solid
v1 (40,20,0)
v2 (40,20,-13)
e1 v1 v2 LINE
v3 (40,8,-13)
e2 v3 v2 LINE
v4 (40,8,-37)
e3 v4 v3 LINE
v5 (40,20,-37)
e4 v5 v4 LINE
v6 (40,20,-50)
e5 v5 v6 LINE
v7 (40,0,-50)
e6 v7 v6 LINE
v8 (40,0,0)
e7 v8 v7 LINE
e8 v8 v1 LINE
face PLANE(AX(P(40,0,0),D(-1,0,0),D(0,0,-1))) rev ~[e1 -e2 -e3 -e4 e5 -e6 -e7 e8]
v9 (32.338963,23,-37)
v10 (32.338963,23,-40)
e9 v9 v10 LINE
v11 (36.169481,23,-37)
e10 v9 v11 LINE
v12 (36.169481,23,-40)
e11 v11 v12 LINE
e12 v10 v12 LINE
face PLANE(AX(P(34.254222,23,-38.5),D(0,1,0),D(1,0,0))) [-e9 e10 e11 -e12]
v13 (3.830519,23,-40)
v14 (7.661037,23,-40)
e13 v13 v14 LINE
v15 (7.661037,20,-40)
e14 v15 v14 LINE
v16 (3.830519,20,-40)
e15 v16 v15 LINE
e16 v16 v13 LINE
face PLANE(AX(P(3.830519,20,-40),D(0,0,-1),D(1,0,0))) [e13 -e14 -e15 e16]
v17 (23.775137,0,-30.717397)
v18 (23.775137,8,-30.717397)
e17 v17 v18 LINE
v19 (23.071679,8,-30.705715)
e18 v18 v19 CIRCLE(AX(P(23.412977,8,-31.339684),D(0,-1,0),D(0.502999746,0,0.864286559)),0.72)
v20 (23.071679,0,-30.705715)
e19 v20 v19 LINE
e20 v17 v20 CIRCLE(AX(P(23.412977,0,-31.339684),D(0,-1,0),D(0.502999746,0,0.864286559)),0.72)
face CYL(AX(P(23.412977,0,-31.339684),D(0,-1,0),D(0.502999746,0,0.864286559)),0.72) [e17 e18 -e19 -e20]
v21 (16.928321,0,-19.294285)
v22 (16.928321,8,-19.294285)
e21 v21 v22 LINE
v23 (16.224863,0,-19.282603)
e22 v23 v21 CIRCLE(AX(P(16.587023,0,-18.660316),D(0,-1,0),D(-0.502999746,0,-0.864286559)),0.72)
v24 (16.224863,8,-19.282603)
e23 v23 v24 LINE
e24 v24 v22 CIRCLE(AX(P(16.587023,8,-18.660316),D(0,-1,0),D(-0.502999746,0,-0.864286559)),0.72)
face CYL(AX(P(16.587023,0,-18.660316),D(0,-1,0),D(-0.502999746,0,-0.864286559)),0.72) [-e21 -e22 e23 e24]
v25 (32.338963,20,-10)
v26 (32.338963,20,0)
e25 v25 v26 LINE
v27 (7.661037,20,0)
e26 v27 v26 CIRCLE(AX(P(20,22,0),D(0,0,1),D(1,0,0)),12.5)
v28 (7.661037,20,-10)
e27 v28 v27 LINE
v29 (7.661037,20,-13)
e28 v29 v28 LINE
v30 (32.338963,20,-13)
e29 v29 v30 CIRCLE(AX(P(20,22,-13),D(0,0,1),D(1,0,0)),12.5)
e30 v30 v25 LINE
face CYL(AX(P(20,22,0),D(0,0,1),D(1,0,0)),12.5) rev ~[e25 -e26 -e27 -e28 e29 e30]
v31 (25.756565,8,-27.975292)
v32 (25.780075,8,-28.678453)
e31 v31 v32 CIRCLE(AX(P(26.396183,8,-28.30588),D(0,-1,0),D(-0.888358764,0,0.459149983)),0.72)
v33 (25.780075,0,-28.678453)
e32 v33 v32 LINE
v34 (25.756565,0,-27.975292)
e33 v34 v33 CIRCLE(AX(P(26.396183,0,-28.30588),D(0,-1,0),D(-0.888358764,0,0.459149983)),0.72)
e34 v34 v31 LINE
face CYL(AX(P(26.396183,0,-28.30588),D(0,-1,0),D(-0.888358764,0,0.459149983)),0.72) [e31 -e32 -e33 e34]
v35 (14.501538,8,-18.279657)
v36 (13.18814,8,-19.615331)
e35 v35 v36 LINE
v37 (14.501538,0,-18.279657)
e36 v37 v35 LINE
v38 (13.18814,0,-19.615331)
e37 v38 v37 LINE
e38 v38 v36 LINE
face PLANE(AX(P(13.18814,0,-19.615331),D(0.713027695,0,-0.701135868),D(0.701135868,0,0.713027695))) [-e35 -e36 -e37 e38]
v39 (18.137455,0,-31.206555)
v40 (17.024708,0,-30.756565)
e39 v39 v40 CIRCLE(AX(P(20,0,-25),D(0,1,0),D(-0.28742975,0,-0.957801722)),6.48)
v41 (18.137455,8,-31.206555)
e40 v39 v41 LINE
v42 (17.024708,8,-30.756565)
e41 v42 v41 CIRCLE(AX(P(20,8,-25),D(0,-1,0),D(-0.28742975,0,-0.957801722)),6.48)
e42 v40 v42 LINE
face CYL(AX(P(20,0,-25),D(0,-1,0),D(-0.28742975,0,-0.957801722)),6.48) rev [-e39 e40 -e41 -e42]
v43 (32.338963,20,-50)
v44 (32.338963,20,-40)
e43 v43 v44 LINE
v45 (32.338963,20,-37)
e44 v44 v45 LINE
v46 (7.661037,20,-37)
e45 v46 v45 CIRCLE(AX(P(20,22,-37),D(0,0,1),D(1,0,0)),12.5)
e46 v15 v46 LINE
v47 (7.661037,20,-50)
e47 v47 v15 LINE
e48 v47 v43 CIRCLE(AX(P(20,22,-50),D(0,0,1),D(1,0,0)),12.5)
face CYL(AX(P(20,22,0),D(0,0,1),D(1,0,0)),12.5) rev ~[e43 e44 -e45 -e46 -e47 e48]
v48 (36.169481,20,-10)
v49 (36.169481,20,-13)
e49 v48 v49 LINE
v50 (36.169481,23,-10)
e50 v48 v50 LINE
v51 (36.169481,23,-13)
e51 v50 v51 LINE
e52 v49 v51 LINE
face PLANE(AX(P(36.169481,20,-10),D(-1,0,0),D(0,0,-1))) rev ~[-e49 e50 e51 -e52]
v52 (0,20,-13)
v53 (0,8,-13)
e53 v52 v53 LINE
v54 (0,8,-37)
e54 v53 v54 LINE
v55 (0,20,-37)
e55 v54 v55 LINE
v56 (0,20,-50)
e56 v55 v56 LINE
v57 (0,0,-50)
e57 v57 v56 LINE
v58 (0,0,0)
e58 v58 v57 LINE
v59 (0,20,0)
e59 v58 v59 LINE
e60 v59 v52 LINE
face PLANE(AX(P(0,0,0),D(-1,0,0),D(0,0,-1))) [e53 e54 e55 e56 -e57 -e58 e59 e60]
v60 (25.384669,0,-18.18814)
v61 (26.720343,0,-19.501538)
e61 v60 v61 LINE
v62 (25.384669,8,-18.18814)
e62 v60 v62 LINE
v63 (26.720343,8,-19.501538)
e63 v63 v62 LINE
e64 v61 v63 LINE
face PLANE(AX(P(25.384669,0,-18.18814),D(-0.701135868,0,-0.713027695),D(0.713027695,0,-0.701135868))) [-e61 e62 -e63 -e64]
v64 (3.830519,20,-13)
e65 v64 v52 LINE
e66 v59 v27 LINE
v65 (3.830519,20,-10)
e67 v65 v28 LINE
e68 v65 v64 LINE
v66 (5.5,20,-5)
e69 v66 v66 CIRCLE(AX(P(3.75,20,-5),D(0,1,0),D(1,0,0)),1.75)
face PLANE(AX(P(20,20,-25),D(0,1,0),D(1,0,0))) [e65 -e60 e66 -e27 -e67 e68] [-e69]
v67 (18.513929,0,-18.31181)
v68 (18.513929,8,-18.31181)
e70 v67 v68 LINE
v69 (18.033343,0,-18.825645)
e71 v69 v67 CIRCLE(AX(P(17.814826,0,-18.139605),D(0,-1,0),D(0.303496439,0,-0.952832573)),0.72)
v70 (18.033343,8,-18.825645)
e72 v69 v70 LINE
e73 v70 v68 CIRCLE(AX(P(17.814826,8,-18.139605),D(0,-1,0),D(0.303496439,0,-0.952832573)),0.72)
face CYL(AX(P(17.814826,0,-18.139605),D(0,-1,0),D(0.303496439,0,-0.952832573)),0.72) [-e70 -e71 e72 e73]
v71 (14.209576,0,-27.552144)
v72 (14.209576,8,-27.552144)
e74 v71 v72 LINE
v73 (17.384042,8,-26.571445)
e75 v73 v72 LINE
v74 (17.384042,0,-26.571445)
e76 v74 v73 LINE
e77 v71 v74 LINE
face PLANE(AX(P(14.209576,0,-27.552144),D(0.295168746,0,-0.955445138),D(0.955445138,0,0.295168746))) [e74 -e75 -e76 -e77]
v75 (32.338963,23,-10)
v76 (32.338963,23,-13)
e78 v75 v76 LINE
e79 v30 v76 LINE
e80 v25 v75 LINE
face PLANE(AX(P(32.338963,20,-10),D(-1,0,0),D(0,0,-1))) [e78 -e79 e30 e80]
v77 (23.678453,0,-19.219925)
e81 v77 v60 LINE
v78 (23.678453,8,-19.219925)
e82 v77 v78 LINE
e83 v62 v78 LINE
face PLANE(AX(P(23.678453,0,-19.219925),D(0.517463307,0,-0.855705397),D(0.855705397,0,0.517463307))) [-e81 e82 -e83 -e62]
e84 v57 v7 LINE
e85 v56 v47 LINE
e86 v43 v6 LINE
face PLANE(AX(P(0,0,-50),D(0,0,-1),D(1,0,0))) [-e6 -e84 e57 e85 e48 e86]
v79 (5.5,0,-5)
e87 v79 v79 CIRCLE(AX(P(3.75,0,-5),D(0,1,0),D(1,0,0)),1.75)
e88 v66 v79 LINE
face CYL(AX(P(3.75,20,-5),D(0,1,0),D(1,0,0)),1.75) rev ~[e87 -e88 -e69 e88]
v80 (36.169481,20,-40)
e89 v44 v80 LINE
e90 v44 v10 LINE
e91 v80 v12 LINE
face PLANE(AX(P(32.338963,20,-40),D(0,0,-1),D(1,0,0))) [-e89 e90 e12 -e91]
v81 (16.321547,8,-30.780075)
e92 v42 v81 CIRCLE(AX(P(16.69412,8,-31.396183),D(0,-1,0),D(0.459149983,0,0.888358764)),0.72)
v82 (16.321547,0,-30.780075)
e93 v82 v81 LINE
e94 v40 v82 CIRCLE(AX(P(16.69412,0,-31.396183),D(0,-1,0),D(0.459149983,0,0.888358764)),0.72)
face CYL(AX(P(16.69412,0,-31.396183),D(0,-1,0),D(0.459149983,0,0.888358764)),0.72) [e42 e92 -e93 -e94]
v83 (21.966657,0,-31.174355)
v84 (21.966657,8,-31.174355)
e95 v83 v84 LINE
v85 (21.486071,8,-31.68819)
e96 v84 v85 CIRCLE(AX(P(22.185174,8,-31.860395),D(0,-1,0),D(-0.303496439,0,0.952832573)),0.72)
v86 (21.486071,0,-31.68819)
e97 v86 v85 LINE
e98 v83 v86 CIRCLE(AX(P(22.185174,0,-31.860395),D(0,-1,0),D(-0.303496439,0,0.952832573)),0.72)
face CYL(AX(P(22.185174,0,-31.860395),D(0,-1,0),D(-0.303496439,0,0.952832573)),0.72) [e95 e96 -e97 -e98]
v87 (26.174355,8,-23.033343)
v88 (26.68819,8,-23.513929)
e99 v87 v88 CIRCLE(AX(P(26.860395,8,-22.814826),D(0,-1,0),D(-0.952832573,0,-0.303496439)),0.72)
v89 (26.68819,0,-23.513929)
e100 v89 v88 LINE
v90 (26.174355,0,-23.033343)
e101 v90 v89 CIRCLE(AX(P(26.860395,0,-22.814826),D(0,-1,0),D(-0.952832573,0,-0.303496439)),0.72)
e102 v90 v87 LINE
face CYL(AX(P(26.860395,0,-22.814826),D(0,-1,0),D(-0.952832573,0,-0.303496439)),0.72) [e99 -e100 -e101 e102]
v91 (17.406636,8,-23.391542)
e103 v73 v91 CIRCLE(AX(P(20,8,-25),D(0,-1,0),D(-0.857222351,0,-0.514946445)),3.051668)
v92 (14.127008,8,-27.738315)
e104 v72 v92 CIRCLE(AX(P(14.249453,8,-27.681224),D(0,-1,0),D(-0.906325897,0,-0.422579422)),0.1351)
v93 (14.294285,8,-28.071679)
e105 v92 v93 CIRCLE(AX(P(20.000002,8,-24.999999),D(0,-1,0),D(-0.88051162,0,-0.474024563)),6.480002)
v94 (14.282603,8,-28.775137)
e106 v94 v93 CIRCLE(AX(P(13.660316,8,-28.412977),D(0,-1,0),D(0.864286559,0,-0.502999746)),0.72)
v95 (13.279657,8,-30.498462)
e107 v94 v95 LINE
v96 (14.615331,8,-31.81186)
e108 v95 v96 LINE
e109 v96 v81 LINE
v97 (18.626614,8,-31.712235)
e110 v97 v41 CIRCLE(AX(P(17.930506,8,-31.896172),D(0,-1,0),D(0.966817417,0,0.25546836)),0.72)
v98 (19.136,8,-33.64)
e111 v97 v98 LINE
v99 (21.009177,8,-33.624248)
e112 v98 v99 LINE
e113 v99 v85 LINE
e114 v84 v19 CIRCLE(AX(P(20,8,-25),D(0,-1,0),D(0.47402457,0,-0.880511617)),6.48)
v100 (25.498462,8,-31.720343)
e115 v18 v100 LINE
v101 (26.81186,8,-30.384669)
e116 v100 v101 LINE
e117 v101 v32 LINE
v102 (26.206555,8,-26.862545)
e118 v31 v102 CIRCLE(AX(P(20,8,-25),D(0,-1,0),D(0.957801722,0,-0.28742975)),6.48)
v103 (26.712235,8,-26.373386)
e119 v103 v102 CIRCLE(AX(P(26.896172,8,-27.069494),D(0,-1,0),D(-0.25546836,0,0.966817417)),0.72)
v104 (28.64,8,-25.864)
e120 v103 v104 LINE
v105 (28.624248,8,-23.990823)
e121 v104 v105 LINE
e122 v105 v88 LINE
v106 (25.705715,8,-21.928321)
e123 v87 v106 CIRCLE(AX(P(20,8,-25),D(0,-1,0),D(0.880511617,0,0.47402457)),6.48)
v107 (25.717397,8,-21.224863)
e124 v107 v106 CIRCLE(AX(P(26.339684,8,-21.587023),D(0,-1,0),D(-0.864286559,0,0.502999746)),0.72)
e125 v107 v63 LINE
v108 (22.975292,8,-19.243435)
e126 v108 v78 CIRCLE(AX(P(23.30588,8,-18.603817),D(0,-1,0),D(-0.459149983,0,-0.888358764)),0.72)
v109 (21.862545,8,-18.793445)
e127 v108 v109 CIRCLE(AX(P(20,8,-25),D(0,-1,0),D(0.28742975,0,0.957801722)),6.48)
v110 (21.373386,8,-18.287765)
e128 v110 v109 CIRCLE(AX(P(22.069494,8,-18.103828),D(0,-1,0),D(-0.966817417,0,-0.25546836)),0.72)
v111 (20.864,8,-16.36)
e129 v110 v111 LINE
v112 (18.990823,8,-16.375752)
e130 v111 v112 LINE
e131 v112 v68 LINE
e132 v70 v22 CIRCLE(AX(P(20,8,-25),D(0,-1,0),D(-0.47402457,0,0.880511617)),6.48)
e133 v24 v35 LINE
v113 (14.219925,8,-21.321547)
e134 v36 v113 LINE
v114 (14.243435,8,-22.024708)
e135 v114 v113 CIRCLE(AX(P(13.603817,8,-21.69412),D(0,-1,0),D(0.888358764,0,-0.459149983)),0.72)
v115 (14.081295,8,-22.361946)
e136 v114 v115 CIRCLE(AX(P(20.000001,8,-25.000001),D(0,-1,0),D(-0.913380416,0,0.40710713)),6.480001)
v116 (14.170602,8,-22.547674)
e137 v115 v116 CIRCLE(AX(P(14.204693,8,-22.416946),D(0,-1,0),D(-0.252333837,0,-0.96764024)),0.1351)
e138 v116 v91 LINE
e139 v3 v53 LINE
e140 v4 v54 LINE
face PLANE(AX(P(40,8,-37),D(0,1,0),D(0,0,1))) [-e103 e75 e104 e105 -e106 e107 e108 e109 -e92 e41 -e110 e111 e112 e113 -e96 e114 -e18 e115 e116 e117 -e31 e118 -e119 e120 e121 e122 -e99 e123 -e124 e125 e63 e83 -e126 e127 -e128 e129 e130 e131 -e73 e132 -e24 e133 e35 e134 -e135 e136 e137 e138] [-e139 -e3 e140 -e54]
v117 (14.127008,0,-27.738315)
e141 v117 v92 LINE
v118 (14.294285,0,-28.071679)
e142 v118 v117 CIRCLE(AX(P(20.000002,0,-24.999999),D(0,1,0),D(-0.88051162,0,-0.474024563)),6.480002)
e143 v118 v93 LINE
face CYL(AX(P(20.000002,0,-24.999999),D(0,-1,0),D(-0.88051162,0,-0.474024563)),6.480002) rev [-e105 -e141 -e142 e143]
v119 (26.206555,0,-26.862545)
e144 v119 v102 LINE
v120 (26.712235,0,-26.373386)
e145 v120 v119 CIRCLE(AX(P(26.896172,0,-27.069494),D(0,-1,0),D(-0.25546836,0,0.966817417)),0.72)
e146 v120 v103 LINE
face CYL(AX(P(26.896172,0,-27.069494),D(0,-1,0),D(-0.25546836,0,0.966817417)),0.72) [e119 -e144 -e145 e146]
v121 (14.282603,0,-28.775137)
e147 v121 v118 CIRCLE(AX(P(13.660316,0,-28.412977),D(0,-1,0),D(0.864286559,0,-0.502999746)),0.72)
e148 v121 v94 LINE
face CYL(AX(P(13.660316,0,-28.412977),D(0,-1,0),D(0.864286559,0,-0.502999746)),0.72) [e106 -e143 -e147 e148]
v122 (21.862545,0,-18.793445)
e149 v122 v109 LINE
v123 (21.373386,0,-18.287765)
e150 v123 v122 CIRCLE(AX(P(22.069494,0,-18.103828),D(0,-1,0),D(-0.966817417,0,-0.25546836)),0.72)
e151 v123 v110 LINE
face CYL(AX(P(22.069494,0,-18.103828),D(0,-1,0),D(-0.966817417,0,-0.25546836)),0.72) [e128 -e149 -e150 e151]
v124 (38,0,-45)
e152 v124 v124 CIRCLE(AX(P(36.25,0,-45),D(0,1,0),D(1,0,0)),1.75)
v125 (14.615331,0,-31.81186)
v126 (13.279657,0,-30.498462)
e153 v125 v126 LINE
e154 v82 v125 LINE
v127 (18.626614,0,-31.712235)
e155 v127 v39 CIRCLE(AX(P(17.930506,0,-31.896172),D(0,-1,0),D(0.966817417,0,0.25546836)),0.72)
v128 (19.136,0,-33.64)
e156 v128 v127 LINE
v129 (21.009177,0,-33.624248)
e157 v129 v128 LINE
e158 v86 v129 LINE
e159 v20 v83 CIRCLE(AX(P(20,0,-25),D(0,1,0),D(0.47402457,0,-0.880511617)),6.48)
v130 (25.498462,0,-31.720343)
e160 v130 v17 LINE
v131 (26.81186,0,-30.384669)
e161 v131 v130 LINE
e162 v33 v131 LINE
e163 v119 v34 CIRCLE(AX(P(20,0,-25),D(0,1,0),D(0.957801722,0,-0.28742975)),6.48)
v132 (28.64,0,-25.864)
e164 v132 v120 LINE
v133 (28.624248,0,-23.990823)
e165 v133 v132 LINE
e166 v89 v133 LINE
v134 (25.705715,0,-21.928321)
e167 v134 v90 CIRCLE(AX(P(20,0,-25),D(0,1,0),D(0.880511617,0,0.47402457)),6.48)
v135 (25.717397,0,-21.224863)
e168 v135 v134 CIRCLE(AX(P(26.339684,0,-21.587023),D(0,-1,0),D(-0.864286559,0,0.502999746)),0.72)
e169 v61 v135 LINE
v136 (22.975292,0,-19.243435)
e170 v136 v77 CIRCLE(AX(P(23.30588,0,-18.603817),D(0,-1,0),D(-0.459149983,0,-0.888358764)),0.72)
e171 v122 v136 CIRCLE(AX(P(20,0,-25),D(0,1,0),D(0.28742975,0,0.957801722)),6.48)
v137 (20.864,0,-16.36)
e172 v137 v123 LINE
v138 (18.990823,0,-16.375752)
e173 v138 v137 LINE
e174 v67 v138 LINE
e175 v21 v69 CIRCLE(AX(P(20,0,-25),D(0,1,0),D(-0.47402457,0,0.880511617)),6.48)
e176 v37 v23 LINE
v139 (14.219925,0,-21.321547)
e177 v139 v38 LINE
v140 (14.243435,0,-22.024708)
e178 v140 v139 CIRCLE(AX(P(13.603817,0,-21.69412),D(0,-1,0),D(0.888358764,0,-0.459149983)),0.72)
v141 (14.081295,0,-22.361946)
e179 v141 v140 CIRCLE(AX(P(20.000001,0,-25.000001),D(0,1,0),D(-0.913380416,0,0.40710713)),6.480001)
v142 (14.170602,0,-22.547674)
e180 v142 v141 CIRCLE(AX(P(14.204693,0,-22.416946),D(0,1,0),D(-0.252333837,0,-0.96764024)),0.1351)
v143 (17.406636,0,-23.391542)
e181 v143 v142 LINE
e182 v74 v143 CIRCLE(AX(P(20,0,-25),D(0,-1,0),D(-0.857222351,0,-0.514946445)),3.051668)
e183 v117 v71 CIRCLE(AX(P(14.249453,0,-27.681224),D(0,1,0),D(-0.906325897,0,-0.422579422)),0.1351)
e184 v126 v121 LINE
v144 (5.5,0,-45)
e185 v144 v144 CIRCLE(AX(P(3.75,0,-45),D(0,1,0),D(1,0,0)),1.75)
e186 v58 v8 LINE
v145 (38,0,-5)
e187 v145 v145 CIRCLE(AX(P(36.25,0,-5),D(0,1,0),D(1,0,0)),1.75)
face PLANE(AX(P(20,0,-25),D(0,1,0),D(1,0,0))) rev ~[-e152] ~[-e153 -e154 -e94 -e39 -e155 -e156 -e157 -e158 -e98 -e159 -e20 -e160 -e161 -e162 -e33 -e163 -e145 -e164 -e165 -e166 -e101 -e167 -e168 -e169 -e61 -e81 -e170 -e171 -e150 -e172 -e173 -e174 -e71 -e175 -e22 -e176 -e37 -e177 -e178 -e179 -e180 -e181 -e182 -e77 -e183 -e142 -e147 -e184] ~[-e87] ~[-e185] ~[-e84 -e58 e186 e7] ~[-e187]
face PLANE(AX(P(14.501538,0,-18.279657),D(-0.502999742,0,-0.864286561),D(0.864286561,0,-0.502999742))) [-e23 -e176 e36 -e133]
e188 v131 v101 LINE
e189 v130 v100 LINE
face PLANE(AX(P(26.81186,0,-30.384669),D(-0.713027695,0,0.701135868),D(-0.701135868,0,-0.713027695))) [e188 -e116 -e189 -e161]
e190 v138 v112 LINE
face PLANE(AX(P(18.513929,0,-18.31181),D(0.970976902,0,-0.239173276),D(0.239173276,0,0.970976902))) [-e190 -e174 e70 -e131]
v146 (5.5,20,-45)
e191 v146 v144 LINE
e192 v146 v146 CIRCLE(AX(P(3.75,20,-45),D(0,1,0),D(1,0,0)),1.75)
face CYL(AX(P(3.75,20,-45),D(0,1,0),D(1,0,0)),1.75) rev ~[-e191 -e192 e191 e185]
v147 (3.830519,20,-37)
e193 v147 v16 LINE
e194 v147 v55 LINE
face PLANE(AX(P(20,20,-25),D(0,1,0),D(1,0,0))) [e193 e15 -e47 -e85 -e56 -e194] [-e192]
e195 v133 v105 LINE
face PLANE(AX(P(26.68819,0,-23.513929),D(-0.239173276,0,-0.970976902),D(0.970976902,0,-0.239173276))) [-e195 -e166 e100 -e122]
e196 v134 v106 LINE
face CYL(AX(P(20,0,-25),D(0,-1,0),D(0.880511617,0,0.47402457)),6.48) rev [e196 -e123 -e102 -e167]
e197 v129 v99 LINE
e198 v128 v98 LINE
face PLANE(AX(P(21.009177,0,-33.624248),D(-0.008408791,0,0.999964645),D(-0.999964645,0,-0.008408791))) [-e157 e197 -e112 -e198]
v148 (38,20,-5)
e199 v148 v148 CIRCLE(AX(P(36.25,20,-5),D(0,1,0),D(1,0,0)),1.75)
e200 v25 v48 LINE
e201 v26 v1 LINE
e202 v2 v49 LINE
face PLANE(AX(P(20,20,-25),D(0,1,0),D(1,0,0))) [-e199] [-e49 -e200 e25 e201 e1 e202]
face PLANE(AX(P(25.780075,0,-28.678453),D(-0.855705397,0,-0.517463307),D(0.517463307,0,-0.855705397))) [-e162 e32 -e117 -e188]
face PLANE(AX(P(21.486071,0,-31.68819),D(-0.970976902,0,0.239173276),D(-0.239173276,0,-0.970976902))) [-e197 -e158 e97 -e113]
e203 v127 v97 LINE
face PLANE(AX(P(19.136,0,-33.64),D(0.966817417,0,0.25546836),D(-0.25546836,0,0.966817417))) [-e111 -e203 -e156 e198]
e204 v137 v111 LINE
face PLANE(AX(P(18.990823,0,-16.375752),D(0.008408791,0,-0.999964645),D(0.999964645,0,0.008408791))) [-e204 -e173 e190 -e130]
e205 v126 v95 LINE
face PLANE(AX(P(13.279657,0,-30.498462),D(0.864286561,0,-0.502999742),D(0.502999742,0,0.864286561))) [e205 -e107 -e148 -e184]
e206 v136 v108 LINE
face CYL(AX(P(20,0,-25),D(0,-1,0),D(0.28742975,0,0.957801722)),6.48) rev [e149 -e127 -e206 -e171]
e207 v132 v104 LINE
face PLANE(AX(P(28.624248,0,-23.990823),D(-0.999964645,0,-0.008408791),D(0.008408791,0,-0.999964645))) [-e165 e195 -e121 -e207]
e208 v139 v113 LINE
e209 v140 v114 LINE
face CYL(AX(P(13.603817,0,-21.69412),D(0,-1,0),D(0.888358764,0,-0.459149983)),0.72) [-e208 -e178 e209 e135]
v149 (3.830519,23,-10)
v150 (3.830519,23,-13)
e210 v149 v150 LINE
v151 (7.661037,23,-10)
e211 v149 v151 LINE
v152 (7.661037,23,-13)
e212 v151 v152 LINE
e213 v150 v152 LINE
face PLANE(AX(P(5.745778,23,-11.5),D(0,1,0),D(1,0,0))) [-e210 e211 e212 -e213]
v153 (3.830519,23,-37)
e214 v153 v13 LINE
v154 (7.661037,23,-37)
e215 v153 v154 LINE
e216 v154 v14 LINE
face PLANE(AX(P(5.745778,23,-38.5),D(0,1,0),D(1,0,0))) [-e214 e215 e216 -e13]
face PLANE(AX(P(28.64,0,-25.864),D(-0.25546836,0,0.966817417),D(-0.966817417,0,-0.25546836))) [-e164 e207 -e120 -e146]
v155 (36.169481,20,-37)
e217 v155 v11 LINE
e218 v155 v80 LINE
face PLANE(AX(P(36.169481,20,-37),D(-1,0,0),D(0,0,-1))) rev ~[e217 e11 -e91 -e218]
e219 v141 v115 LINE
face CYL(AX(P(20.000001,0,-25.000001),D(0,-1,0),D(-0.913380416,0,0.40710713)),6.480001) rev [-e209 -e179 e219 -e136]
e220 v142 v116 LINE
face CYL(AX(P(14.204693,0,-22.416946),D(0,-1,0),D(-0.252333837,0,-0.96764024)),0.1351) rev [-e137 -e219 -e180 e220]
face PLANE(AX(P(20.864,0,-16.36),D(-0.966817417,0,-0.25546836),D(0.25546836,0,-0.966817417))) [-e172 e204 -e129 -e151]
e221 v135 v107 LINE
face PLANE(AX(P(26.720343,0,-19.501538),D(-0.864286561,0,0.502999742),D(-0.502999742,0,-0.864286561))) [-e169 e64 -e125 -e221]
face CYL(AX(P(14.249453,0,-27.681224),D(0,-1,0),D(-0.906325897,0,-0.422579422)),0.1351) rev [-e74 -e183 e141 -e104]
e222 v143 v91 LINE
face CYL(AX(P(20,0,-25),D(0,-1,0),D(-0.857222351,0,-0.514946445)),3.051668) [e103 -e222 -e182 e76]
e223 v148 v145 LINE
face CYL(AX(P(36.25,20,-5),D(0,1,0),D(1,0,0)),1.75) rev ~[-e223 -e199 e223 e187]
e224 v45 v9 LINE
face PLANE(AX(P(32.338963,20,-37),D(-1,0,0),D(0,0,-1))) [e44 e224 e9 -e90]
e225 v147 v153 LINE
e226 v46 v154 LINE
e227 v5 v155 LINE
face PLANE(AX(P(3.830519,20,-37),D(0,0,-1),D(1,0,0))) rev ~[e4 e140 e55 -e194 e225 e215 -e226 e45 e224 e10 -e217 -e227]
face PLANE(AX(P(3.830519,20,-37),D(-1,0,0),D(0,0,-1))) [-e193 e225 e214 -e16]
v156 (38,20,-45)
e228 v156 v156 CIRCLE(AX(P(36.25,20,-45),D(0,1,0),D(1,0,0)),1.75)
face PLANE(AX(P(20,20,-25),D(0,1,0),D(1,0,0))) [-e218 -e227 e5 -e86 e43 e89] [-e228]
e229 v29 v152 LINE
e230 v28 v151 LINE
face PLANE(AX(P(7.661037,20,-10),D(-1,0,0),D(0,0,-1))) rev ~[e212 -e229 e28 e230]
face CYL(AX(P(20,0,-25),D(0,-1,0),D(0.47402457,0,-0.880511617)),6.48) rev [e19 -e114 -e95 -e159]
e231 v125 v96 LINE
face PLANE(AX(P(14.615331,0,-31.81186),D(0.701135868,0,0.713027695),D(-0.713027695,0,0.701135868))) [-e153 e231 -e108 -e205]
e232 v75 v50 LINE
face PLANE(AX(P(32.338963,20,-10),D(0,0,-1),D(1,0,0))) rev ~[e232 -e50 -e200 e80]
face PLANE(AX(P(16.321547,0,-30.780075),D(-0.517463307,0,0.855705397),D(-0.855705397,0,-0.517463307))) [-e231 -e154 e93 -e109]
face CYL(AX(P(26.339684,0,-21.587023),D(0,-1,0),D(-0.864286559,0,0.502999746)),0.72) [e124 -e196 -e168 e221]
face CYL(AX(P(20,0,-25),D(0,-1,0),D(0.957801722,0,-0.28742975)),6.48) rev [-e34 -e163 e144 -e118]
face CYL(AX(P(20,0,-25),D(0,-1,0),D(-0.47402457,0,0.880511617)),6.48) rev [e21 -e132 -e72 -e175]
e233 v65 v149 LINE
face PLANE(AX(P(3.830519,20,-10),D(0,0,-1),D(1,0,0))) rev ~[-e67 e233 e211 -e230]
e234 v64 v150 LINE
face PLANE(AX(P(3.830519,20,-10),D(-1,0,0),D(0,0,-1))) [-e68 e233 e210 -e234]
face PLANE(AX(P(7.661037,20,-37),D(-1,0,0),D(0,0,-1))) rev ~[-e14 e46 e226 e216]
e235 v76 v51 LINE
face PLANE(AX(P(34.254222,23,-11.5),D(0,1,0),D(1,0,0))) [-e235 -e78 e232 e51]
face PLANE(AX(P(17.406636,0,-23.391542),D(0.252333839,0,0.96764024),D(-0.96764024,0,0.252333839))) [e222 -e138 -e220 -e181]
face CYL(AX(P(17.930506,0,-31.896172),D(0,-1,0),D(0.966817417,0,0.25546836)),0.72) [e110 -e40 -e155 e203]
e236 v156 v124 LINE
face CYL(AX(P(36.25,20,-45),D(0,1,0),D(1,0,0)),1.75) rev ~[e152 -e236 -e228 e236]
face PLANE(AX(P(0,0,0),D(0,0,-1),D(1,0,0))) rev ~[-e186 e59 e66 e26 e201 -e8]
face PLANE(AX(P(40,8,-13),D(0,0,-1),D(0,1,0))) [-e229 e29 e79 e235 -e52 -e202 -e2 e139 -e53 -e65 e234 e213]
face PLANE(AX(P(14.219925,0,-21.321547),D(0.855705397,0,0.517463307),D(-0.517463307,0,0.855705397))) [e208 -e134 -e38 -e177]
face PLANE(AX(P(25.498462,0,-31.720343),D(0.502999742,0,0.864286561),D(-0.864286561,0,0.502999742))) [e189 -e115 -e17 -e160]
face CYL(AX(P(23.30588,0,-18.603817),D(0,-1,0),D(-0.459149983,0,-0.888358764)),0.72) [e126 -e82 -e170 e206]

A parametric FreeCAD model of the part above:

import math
import FreeCAD as App
import Part
import Sketcher
Q = App.Units.Quantity

doc = App.newDocument("Part")
params = doc.addObject("Spreadsheet::Sheet", "Params")
for row, (alias, value) in enumerate([
    ("sketch1_width", "40 mm"),
    ("sketch1_height", "50 mm"),
    ("pad1_length", "20 mm"),
    ("sketch2_diameter", "25 mm"),
    ("sketch3_diameter", "3.5 mm"),
    ("sketch4_width", "12 mm"),
    ("sketch4_height", "24 mm"),
    ("sketch5_height", "3 mm"),
    ("pad2_length", "3 mm"),
    ("sketch6_radius", "0.72 mm"),
    ("sketch6_radius2", "6.480001 mm"),
], start=1):
    params.set(f"A{row}", alias)
    params.set(f"B{row}", "=" + value)
    params.setAlias(f"B{row}", alias)

body = doc.addObject("PartDesign::Body", "Body")

# Sketch on XZ plane
sketch1 = doc.addObject("Sketcher::SketchObject", "Sketch")
body.addObject(sketch1)
sketch1.AttachmentSupport = (doc.XZ_Plane, [""])
sketch1.MapMode = "FlatFace"
sketch1.addGeometry(Part.LineSegment(App.Vector(0, -50, 0), App.Vector(0, 0, 0)), False)
sketch1.addGeometry(Part.LineSegment(App.Vector(0, 0, 0), App.Vector(40, 0, 0)), False)
sketch1.addGeometry(Part.LineSegment(App.Vector(40, 0, 0), App.Vector(40, -50, 0)), False)
sketch1.addGeometry(Part.LineSegment(App.Vector(40, -50, 0), App.Vector(0, -50, 0)), False)
sketch1.addConstraint(Sketcher.Constraint("Coincident", 0, 2, 1, 1))
sketch1.addConstraint(Sketcher.Constraint("Coincident", 1, 2, 2, 1))
sketch1.addConstraint(Sketcher.Constraint("Coincident", 2, 2, 3, 1))
sketch1.addConstraint(Sketcher.Constraint("Coincident", 3, 2, 0, 1))
sketch1.addConstraint(Sketcher.Constraint("Vertical", 0))
sketch1.addConstraint(Sketcher.Constraint("Horizontal", 1))
sketch1.addConstraint(Sketcher.Constraint("Vertical", 2))
sketch1.addConstraint(Sketcher.Constraint("Horizontal", 3))
sketch1.addConstraint(Sketcher.Constraint("Coincident", 0, 2, -1, 1))
sketch1.addConstraint(Sketcher.Constraint("DistanceX", 1, 1, 1, 2, Q("40 mm")))
sketch1.addConstraint(Sketcher.Constraint("DistanceY", 0, 1, 0, 2, Q("50 mm")))
sketch1.setExpression("Constraints[9]", "Params.sketch1_width")
sketch1.setExpression("Constraints[10]", "Params.sketch1_height")
pad1 = doc.addObject("PartDesign::Pad", "Pad")
body.addObject(pad1)
pad1.Profile = sketch1
pad1.setExpression("Length", "Params.pad1_length")
pad1.Reversed = True

# Sketch on XY plane
sketch2 = doc.addObject("Sketcher::SketchObject", "Sketch001")
body.addObject(sketch2)
sketch2.AttachmentSupport = (doc.XY_Plane, [""])
sketch2.MapMode = "FlatFace"
sketch2.addGeometry(Part.Circle(App.Vector(20, 22, 0), App.Vector(0, 0, 1), 12), False)
sketch2.addConstraint(Sketcher.Constraint("Diameter", 0, Q("25 mm")))
sketch2.addConstraint(Sketcher.Constraint("DistanceX", -1, 1, 0, 3, Q("20 mm")))
sketch2.addConstraint(Sketcher.Constraint("DistanceY", -1, 1, 0, 3, Q("22 mm")))
sketch2.setExpression("Constraints[0]", "Params.sketch2_diameter")
pocket1 = doc.addObject("PartDesign::Pocket", "Pocket")
body.addObject(pocket1)
pocket1.Profile = sketch2
pocket1.Type = "ThroughAll"

# Sketch on XZ plane
sketch3 = doc.addObject("Sketcher::SketchObject", "Sketch002")
body.addObject(sketch3)
sketch3.AttachmentSupport = (doc.XZ_Plane, [""])
sketch3.MapMode = "FlatFace"
sketch3.AttachmentOffset = App.Placement(App.Vector(0, 0, -20), App.Rotation())
sketch3.addGeometry(Part.Circle(App.Vector(3.8, -45, 0), App.Vector(0, 0, 1), 1.8), False)
sketch3.addGeometry(Part.Circle(App.Vector(36.2, -45, 0), App.Vector(0, 0, 1), 1.8), False)
sketch3.addGeometry(Part.Circle(App.Vector(36.2, -5, 0), App.Vector(0, 0, 1), 1.8), False)
sketch3.addGeometry(Part.Circle(App.Vector(3.8, -5, 0), App.Vector(0, 0, 1), 1.8), False)
sketch3.addConstraint(Sketcher.Constraint("Equal", 0, 1))
sketch3.addConstraint(Sketcher.Constraint("Equal", 1, 2))
sketch3.addConstraint(Sketcher.Constraint("Equal", 2, 3))
sketch3.addConstraint(Sketcher.Constraint("Horizontal", 0, 3, 1, 3))
sketch3.addConstraint(Sketcher.Constraint("Horizontal", 2, 3, 3, 3))
sketch3.addConstraint(Sketcher.Constraint("Vertical", 1, 3, 2, 3))
sketch3.addConstraint(Sketcher.Constraint("Vertical", 0, 3, 3, 3))
sketch3.addConstraint(Sketcher.Constraint("Diameter", 0, Q("3.5 mm")))
sketch3.addConstraint(Sketcher.Constraint("DistanceY", 0, 3, -1, 1, Q("45 mm")))
sketch3.addConstraint(Sketcher.Constraint("DistanceY", 2, 3, -1, 1, Q("5 mm")))
sketch3.addConstraint(Sketcher.Constraint("DistanceX", 0, 3, 1, 3, Q("32.5 mm")))
sketch3.addConstraint(Sketcher.Constraint("DistanceX", -1, 1, 0, 3, Q("3.75 mm")))
sketch3.setExpression("Constraints[7]", "Params.sketch3_diameter")
pocket2 = doc.addObject("PartDesign::Pocket", "Pocket001")
body.addObject(pocket2)
pocket2.Profile = sketch3
pocket2.Type = "ThroughAll"
pocket2.Reversed = True

# Sketch on YZ plane
sketch4 = doc.addObject("Sketcher::SketchObject", "Sketch003")
body.addObject(sketch4)
sketch4.AttachmentSupport = (doc.YZ_Plane, [""])
sketch4.MapMode = "FlatFace"
sketch4.AttachmentOffset = App.Placement(App.Vector(0, 0, 40), App.Rotation())
sketch4.addGeometry(Part.LineSegment(App.Vector(20, -37, 0), App.Vector(20, -13, 0)), False)
sketch4.addGeometry(Part.LineSegment(App.Vector(20, -13, 0), App.Vector(8, -13, 0)), False)
sketch4.addGeometry(Part.LineSegment(App.Vector(8, -13, 0), App.Vector(8, -37, 0)), False)
sketch4.addGeometry(Part.LineSegment(App.Vector(8, -37, 0), App.Vector(20, -37, 0)), False)
sketch4.addConstraint(Sketcher.Constraint("Coincident", 0, 2, 1, 1))
sketch4.addConstraint(Sketcher.Constraint("Coincident", 1, 2, 2, 1))
sketch4.addConstraint(Sketcher.Constraint("Coincident", 2, 2, 3, 1))
sketch4.addConstraint(Sketcher.Constraint("Coincident", 3, 2, 0, 1))
sketch4.addConstraint(Sketcher.Constraint("Vertical", 0))
sketch4.addConstraint(Sketcher.Constraint("Horizontal", 1))
sketch4.addConstraint(Sketcher.Constraint("Vertical", 2))
sketch4.addConstraint(Sketcher.Constraint("Horizontal", 3))
sketch4.addConstraint(Sketcher.Constraint("DistanceX", 1, 2, 1, 1, Q("12 mm")))
sketch4.addConstraint(Sketcher.Constraint("DistanceY", 0, 1, 0, 2, Q("24 mm")))
sketch4.addConstraint(Sketcher.Constraint("DistanceX", -1, 1, 0, 2, Q("20 mm")))
sketch4.addConstraint(Sketcher.Constraint("DistanceY", 0, 2, -1, 1, Q("13 mm")))
sketch4.setExpression("Constraints[8]", "Params.sketch4_width")
sketch4.setExpression("Constraints[9]", "Params.sketch4_height")
pocket3 = doc.addObject("PartDesign::Pocket", "Pocket002")
body.addObject(pocket3)
pocket3.Profile = sketch4
pocket3.Type = "ThroughAll"

# Sketch on XZ plane
sketch5 = doc.addObject("Sketcher::SketchObject", "Sketch004")
body.addObject(sketch5)
sketch5.AttachmentSupport = (doc.XZ_Plane, [""])
sketch5.MapMode = "FlatFace"
sketch5.AttachmentOffset = App.Placement(App.Vector(0, 0, -20), App.Rotation())
sketch5.addGeometry(Part.LineSegment(App.Vector(3.8, -40, 0), App.Vector(3.8, -37, 0)), False)
sketch5.addGeometry(Part.LineSegment(App.Vector(3.8, -37, 0), App.Vector(7.7, -37, 0)), False)
sketch5.addGeometry(Part.LineSegment(App.Vector(7.7, -37, 0), App.Vector(7.7, -40, 0)), False)
sketch5.addGeometry(Part.LineSegment(App.Vector(7.7, -40, 0), App.Vector(3.8, -40, 0)), False)
sketch5.addGeometry(Part.LineSegment(App.Vector(32.3, -40, 0), App.Vector(32.3, -37, 0)), False)
sketch5.addGeometry(Part.LineSegment(App.Vector(32.3, -37, 0), App.Vector(36.2, -37, 0)), False)
sketch5.addGeometry(Part.LineSegment(App.Vector(36.2, -37, 0), App.Vector(36.2, -40, 0)), False)
sketch5.addGeometry(Part.LineSegment(App.Vector(36.2, -40, 0), App.Vector(32.3, -40, 0)), False)
sketch5.addGeometry(Part.LineSegment(App.Vector(32.3, -13, 0), App.Vector(32.3, -10, 0)), False)
sketch5.addGeometry(Part.LineSegment(App.Vector(32.3, -10, 0), App.Vector(36.2, -10, 0)), False)
sketch5.addGeometry(Part.LineSegment(App.Vector(36.2, -10, 0), App.Vector(36.2, -13, 0)), False)
sketch5.addGeometry(Part.LineSegment(App.Vector(36.2, -13, 0), App.Vector(32.3, -13, 0)), False)
sketch5.addGeometry(Part.LineSegment(App.Vector(3.8, -13, 0), App.Vector(3.8, -10, 0)), False)
sketch5.addGeometry(Part.LineSegment(App.Vector(3.8, -10, 0), App.Vector(7.7, -10, 0)), False)
sketch5.addGeometry(Part.LineSegment(App.Vector(7.7, -10, 0), App.Vector(7.7, -13, 0)), False)
sketch5.addGeometry(Part.LineSegment(App.Vector(7.7, -13, 0), App.Vector(3.8, -13, 0)), False)
sketch5.addConstraint(Sketcher.Constraint("Coincident", 0, 2, 1, 1))
sketch5.addConstraint(Sketcher.Constraint("Coincident", 1, 2, 2, 1))
sketch5.addConstraint(Sketcher.Constraint("Coincident", 2, 2, 3, 1))
sketch5.addConstraint(Sketcher.Constraint("Coincident", 3, 2, 0, 1))
sketch5.addConstraint(Sketcher.Constraint("Coincident", 4, 2, 5, 1))
sketch5.addConstraint(Sketcher.Constraint("Coincident", 5, 2, 6, 1))
sketch5.addConstraint(Sketcher.Constraint("Coincident", 6, 2, 7, 1))
sketch5.addConstraint(Sketcher.Constraint("Coincident", 7, 2, 4, 1))
sketch5.addConstraint(Sketcher.Constraint("Coincident", 8, 2, 9, 1))
sketch5.addConstraint(Sketcher.Constraint("Coincident", 9, 2, 10, 1))
sketch5.addConstraint(Sketcher.Constraint("Coincident", 10, 2, 11, 1))
sketch5.addConstraint(Sketcher.Constraint("Coincident", 11, 2, 8, 1))
sketch5.addConstraint(Sketcher.Constraint("Coincident", 12, 2, 13, 1))
sketch5.addConstraint(Sketcher.Constraint("Coincident", 13, 2, 14, 1))
sketch5.addConstraint(Sketcher.Constraint("Coincident", 14, 2, 15, 1))
sketch5.addConstraint(Sketcher.Constraint("Coincident", 15, 2, 12, 1))
sketch5.addConstraint(Sketcher.Constraint("Vertical", 0))
sketch5.addConstraint(Sketcher.Constraint("Horizontal", 1))
sketch5.addConstraint(Sketcher.Constraint("Vertical", 2))
sketch5.addConstraint(Sketcher.Constraint("Horizontal", 3))
sketch5.addConstraint(Sketcher.Constraint("Vertical", 4))
sketch5.addConstraint(Sketcher.Constraint("Horizontal", 5))
sketch5.addConstraint(Sketcher.Constraint("Vertical", 6))
sketch5.addConstraint(Sketcher.Constraint("Horizontal", 7))
sketch5.addConstraint(Sketcher.Constraint("Vertical", 8))
sketch5.addConstraint(Sketcher.Constraint("Horizontal", 9))
sketch5.addConstraint(Sketcher.Constraint("Vertical", 10))
sketch5.addConstraint(Sketcher.Constraint("Horizontal", 11))
sketch5.addConstraint(Sketcher.Constraint("Vertical", 12))
sketch5.addConstraint(Sketcher.Constraint("Horizontal", 13))
sketch5.addConstraint(Sketcher.Constraint("Vertical", 14))
sketch5.addConstraint(Sketcher.Constraint("Horizontal", 15))
sketch5.addConstraint(Sketcher.Constraint("Horizontal", 1, 2, 4, 2))
sketch5.addConstraint(Sketcher.Constraint("Horizontal", 3, 2, 6, 2))
sketch5.addConstraint(Sketcher.Constraint("Horizontal", 9, 2, 12, 2))
sketch5.addConstraint(Sketcher.Constraint("Horizontal", 11, 2, 14, 2))
sketch5.addConstraint(Sketcher.Constraint("Vertical", 7, 2, 8, 2))
sketch5.addConstraint(Sketcher.Constraint("Vertical", 6, 2, 9, 2))
sketch5.addConstraint(Sketcher.Constraint("Vertical", 3, 2, 12, 2))
sketch5.addConstraint(Sketcher.Constraint("Vertical", 2, 2, 13, 2))
sketch5.addConstraint(Sketcher.Constraint("Equal", 3, 5))
sketch5.addConstraint(Sketcher.Constraint("Equal", 6, 8))
sketch5.addConstraint(Sketcher.Constraint("DistanceY", 0, 1, 0, 2, Q("3 mm")))
sketch5.addConstraint(Sketcher.Constraint("DistanceY", 0, 2, -1, 1, Q("37 mm")))
sketch5.addConstraint(Sketcher.Constraint("DistanceY", 8, 2, -1, 1, Q("10 mm")))
sketch5.addConstraint(Sketcher.Constraint("DistanceX", 1, 1, 1, 2, Q("3.830519 mm")))
sketch5.addConstraint(Sketcher.Constraint("DistanceX", -1, 1, 0, 2, Q("3.830519 mm")))
sketch5.addConstraint(Sketcher.Constraint("DistanceX", -1, 1, 5, 2, Q("36.169481 mm")))
sketch5.setExpression("Constraints[42]", "Params.sketch5_height")
pad2 = doc.addObject("PartDesign::Pad", "Pad001")
body.addObject(pad2)
pad2.Profile = sketch5
pad2.setExpression("Length", "Params.pad2_length")
pad2.Reversed = True

# Sketch on XZ plane
sketch6 = doc.addObject("Sketcher::SketchObject", "Sketch005")
body.addObject(sketch6)
sketch6.AttachmentSupport = (doc.XZ_Plane, [""])
sketch6.MapMode = "FlatFace"
sketch6.addGeometry(Part.LineSegment(App.Vector(14.5, -18.28, 0), App.Vector(13.19, -19.62, 0)), False)
sketch6.addGeometry(Part.LineSegment(App.Vector(13.19, -19.62, 0), App.Vector(14.22, -21.32, 0)), False)
sketch6.addGeometry(Part.ArcOfCircle(Part.Circle(App.Vector(13.6, -21.69, 0), App.Vector(0, 0, 1), 0.72), math.radians(-27), math.radians(31)), False)
sketch6.addGeometry(Part.ArcOfCircle(Part.Circle(App.Vector(20, -25, 0), App.Vector(0, 0, 1), 6.48), math.radians(152.67), math.radians(155.98)), False)
sketch6.addGeometry(Part.ArcOfCircle(Part.Circle(App.Vector(14.2, -22.42, 0), App.Vector(0, 0, 1), 0.14), math.radians(156), math.radians(255)), False)
sketch6.addGeometry(Part.LineSegment(App.Vector(14.17, -22.55, 0), App.Vector(17.41, -23.39, 0)), False)
sketch6.addGeometry(Part.ArcOfCircle(Part.Circle(App.Vector(20, -25, 0), App.Vector(0, 0, 1), 3.05), math.radians(-149), math.radians(148)), False)
sketch6.addGeometry(Part.LineSegment(App.Vector(17.38, -26.57, 0), App.Vector(14.21, -27.55, 0)), False)
sketch6.addGeometry(Part.ArcOfCircle(Part.Circle(App.Vector(14.25, -27.68, 0), App.Vector(0, 0, 1), 0.14), math.radians(107), math.radians(205)), False)
sketch6.addGeometry(Part.ArcOfCircle(Part.Circle(App.Vector(20, -25, 0), App.Vector(0, 0, 1), 6.48), math.radians(-155), math.radians(-151.7)), False)
sketch6.addGeometry(Part.ArcOfCircle(Part.Circle(App.Vector(13.66, -28.41, 0), App.Vector(0, 0, 1), 0.72), math.radians(-30), math.radians(28)), False)
sketch6.addGeometry(Part.LineSegment(App.Vector(14.28, -28.78, 0), App.Vector(13.28, -30.5, 0)), False)
sketch6.addGeometry(Part.LineSegment(App.Vector(13.28, -30.5, 0), App.Vector(14.62, -31.81, 0)), False)
sketch6.addGeometry(Part.LineSegment(App.Vector(14.62, -31.81, 0), App.Vector(16.32, -30.78, 0)), False)
sketch6.addGeometry(Part.ArcOfCircle(Part.Circle(App.Vector(16.69, -31.4, 0), App.Vector(0, 0, 1), 0.72), math.radians(63), math.radians(121)), False)
sketch6.addGeometry(Part.ArcOfCircle(Part.Circle(App.Vector(20, -25, 0), App.Vector(0, 0, 1), 6.48), math.radians(-117.33), math.radians(-106.7)), False)
sketch6.addGeometry(Part.ArcOfCircle(Part.Circle(App.Vector(17.93, -31.9, 0), App.Vector(0, 0, 1), 0.72), math.radians(15), math.radians(73)), False)
sketch6.addGeometry(Part.LineSegment(App.Vector(18.63, -31.71, 0), App.Vector(19.14, -33.64, 0)), False)
sketch6.addGeometry(Part.LineSegment(App.Vector(19.14, -33.64, 0), App.Vector(21.01, -33.62, 0)), False)
sketch6.addGeometry(Part.LineSegment(App.Vector(21.01, -33.62, 0), App.Vector(21.49, -31.69, 0)), False)
sketch6.addGeometry(Part.ArcOfCircle(Part.Circle(App.Vector(22.19, -31.86, 0), App.Vector(0, 0, 1), 0.72), math.radians(108), math.radians(166)), False)
sketch6.addGeometry(Part.ArcOfCircle(Part.Circle(App.Vector(20, -25, 0), App.Vector(0, 0, 1), 6.48), math.radians(-72.33), math.radians(-61.7)), False)
sketch6.addGeometry(Part.ArcOfCircle(Part.Circle(App.Vector(23.41, -31.34, 0), App.Vector(0, 0, 1), 0.72), math.radians(60), math.radians(118)), False)
sketch6.addGeometry(Part.LineSegment(App.Vector(23.78, -30.72, 0), App.Vector(25.5, -31.72, 0)), False)
sketch6.addGeometry(Part.LineSegment(App.Vector(25.5, -31.72, 0), App.Vector(26.81, -30.38, 0)), False)
sketch6.addGeometry(Part.LineSegment(App.Vector(26.81, -30.38, 0), App.Vector(25.78, -28.68, 0)), False)
sketch6.addGeometry(Part.ArcOfCircle(Part.Circle(App.Vector(26.4, -28.31, 0), App.Vector(0, 0, 1), 0.72), math.radians(153), math.radians(211)), False)
sketch6.addGeometry(Part.ArcOfCircle(Part.Circle(App.Vector(20, -25, 0), App.Vector(0, 0, 1), 6.48), math.radians(-27.33), math.radians(-16.7)), False)
sketch6.addGeometry(Part.ArcOfCircle(Part.Circle(App.Vector(26.9, -27.07, 0), App.Vector(0, 0, 1), 0.72), math.radians(105), math.radians(163)), False)
sketch6.addGeometry(Part.LineSegment(App.Vector(26.71, -26.37, 0), App.Vector(28.64, -25.86, 0)), False)
sketch6.addGeometry(Part.LineSegment(App.Vector(28.64, -25.86, 0), App.Vector(28.62, -23.99, 0)), False)
sketch6.addGeometry(Part.LineSegment(App.Vector(28.62, -23.99, 0), App.Vector(26.69, -23.51, 0)), False)
sketch6.addGeometry(Part.ArcOfCircle(Part.Circle(App.Vector(26.86, -22.81, 0), App.Vector(0, 0, 1), 0.72), math.radians(-162), math.radians(-104)), False)
sketch6.addGeometry(Part.ArcOfCircle(Part.Circle(App.Vector(20, -25, 0), App.Vector(0, 0, 1), 6.48), math.radians(17.67), math.radians(28.3)), False)
sketch6.addGeometry(Part.ArcOfCircle(Part.Circle(App.Vector(26.34, -21.59, 0), App.Vector(0, 0, 1), 0.72), math.radians(150), math.radians(208)), False)
sketch6.addGeometry(Part.LineSegment(App.Vector(25.72, -21.22, 0), App.Vector(26.72, -19.5, 0)), False)
sketch6.addGeometry(Part.LineSegment(App.Vector(26.72, -19.5, 0), App.Vector(25.38, -18.19, 0)), False)
sketch6.addGeometry(Part.LineSegment(App.Vector(25.38, -18.19, 0), App.Vector(23.68, -19.22, 0)), False)
sketch6.addGeometry(Part.ArcOfCircle(Part.Circle(App.Vector(23.31, -18.6, 0), App.Vector(0, 0, 1), 0.72), math.radians(-117), math.radians(-59)), False)
sketch6.addGeometry(Part.ArcOfCircle(Part.Circle(App.Vector(20, -25, 0), App.Vector(0, 0, 1), 6.48), math.radians(62.67), math.radians(73.3)), False)
sketch6.addGeometry(Part.ArcOfCircle(Part.Circle(App.Vector(22.07, -18.1, 0), App.Vector(0, 0, 1), 0.72), math.radians(-165), math.radians(-107)), False)
sketch6.addGeometry(Part.LineSegment(App.Vector(21.37, -18.29, 0), App.Vector(20.86, -16.36, 0)), False)
sketch6.addGeometry(Part.LineSegment(App.Vector(20.86, -16.36, 0), App.Vector(18.99, -16.38, 0)), False)
sketch6.addGeometry(Part.LineSegment(App.Vector(18.99, -16.38, 0), App.Vector(18.51, -18.31, 0)), False)
sketch6.addGeometry(Part.ArcOfCircle(Part.Circle(App.Vector(17.81, -18.14, 0), App.Vector(0, 0, 1), 0.72), math.radians(-72), math.radians(-14)), False)
sketch6.addGeometry(Part.ArcOfCircle(Part.Circle(App.Vector(20, -25, 0), App.Vector(0, 0, 1), 6.48), math.radians(107.67), math.radians(118.3)), False)
sketch6.addGeometry(Part.ArcOfCircle(Part.Circle(App.Vector(16.59, -18.66, 0), App.Vector(0, 0, 1), 0.72), math.radians(-120), math.radians(-62)), False)
sketch6.addGeometry(Part.LineSegment(App.Vector(16.22, -19.28, 0), App.Vector(14.5, -18.28, 0)), False)
sketch6.addConstraint(Sketcher.Constraint("Coincident", 0, 2, 1, 1))
sketch6.addConstraint(Sketcher.Constraint("Tangent", 1, 2, 2, 2))
sketch6.addConstraint(Sketcher.Constraint("Tangent", 2, 1, 3, 1))
sketch6.addConstraint(Sketcher.Constraint("Tangent", 3, 2, 4, 1))
sketch6.addConstraint(Sketcher.Constraint("Tangent", 4, 2, 5, 1))
sketch6.addConstraint(Sketcher.Constraint("Coincident", 5, 2, 6, 2))
sketch6.addConstraint(Sketcher.Constraint("Coincident", 6, 1, 7, 1))
sketch6.addConstraint(Sketcher.Constraint("Tangent", 7, 2, 8, 1))
sketch6.addConstraint(Sketcher.Constraint("Tangent", 8, 2, 9, 1))
sketch6.addConstraint(Sketcher.Constraint("Tangent", 9, 2, 10, 2))
sketch6.addConstraint(Sketcher.Constraint("Tangent", 10, 1, 11, 1))
sketch6.addConstraint(Sketcher.Constraint("Coincident", 11, 2, 12, 1))
sketch6.addConstraint(Sketcher.Constraint("Coincident", 12, 2, 13, 1))
sketch6.addConstraint(Sketcher.Constraint("Tangent", 13, 2, 14, 2))
sketch6.addConstraint(Sketcher.Constraint("Tangent", 14, 1, 15, 1))
sketch6.addConstraint(Sketcher.Constraint("Tangent", 15, 2, 16, 2))
sketch6.addConstraint(Sketcher.Constraint("Tangent", 16, 1, 17, 1))
sketch6.addConstraint(Sketcher.Constraint("Coincident", 17, 2, 18, 1))
sketch6.addConstraint(Sketcher.Constraint("Coincident", 18, 2, 19, 1))
sketch6.addConstraint(Sketcher.Constraint("Tangent", 19, 2, 20, 2))
sketch6.addConstraint(Sketcher.Constraint("Tangent", 20, 1, 21, 1))
sketch6.addConstraint(Sketcher.Constraint("Tangent", 21, 2, 22, 2))
sketch6.addConstraint(Sketcher.Constraint("Tangent", 22, 1, 23, 1))
sketch6.addConstraint(Sketcher.Constraint("Coincident", 23, 2, 24, 1))
sketch6.addConstraint(Sketcher.Constraint("Coincident", 24, 2, 25, 1))
sketch6.addConstraint(Sketcher.Constraint("Tangent", 25, 2, 26, 2))
sketch6.addConstraint(Sketcher.Constraint("Tangent", 26, 1, 27, 1))
sketch6.addConstraint(Sketcher.Constraint("Tangent", 27, 2, 28, 2))
sketch6.addConstraint(Sketcher.Constraint("Tangent", 28, 1, 29, 1))
sketch6.addConstraint(Sketcher.Constraint("Coincident", 29, 2, 30, 1))
sketch6.addConstraint(Sketcher.Constraint("Coincident", 30, 2, 31, 1))
sketch6.addConstraint(Sketcher.Constraint("Tangent", 31, 2, 32, 2))
sketch6.addConstraint(Sketcher.Constraint("Tangent", 32, 1, 33, 1))
sketch6.addConstraint(Sketcher.Constraint("Tangent", 33, 2, 34, 2))
sketch6.addConstraint(Sketcher.Constraint("Tangent", 34, 1, 35, 1))
sketch6.addConstraint(Sketcher.Constraint("Coincident", 35, 2, 36, 1))
sketch6.addConstraint(Sketcher.Constraint("Coincident", 36, 2, 37, 1))
sketch6.addConstraint(Sketcher.Constraint("Tangent", 37, 2, 38, 2))
sketch6.addConstraint(Sketcher.Constraint("Tangent", 38, 1, 39, 1))
sketch6.addConstraint(Sketcher.Constraint("Tangent", 39, 2, 40, 2))
sketch6.addConstraint(Sketcher.Constraint("Tangent", 40, 1, 41, 1))
sketch6.addConstraint(Sketcher.Constraint("Coincident", 41, 2, 42, 1))
sketch6.addConstraint(Sketcher.Constraint("Coincident", 42, 2, 43, 1))
sketch6.addConstraint(Sketcher.Constraint("Tangent", 43, 2, 44, 2))
sketch6.addConstraint(Sketcher.Constraint("Tangent", 44, 1, 45, 1))
sketch6.addConstraint(Sketcher.Constraint("Tangent", 45, 2, 46, 2))
sketch6.addConstraint(Sketcher.Constraint("Tangent", 46, 1, 47, 1))
sketch6.addConstraint(Sketcher.Constraint("Coincident", 47, 2, 0, 1))
sketch6.addConstraint(Sketcher.Constraint("Coincident", 6, 3, 3, 3))
sketch6.addConstraint(Sketcher.Constraint("Coincident", 9, 3, 3, 3))
sketch6.addConstraint(Sketcher.Constraint("Coincident", 15, 3, 3, 3))
sketch6.addConstraint(Sketcher.Constraint("Coincident", 21, 3, 3, 3))
sketch6.addConstraint(Sketcher.Constraint("Coincident", 27, 3, 3, 3))
sketch6.addConstraint(Sketcher.Constraint("Coincident", 33, 3, 3, 3))
sketch6.addConstraint(Sketcher.Constraint("Coincident", 39, 3, 3, 3))
sketch6.addConstraint(Sketcher.Constraint("Coincident", 45, 3, 3, 3))
sketch6.addConstraint(Sketcher.Constraint("Equal", 4, 8))
sketch6.addConstraint(Sketcher.Constraint("Equal", 3, 9))
sketch6.addConstraint(Sketcher.Constraint("Equal", 2, 10))
sketch6.addConstraint(Sketcher.Constraint("Equal", 10, 14))
sketch6.addConstraint(Sketcher.Constraint("Equal", 9, 15))
sketch6.addConstraint(Sketcher.Constraint("Equal", 14, 16))
sketch6.addConstraint(Sketcher.Constraint("Equal", 16, 20))
sketch6.addConstraint(Sketcher.Constraint("Equal", 15, 21))
sketch6.addConstraint(Sketcher.Constraint("Equal", 20, 22))
sketch6.addConstraint(Sketcher.Constraint("Equal", 22, 26))
sketch6.addConstraint(Sketcher.Constraint("Equal", 21, 27))
sketch6.addConstraint(Sketcher.Constraint("Equal", 26, 28))
sketch6.addConstraint(Sketcher.Constraint("Equal", 28, 32))
sketch6.addConstraint(Sketcher.Constraint("Equal", 27, 33))
sketch6.addConstraint(Sketcher.Constraint("Equal", 32, 34))
sketch6.addConstraint(Sketcher.Constraint("Equal", 34, 38))
sketch6.addConstraint(Sketcher.Constraint("Equal", 33, 39))
sketch6.addConstraint(Sketcher.Constraint("Equal", 38, 40))
sketch6.addConstraint(Sketcher.Constraint("Equal", 40, 44))
sketch6.addConstraint(Sketcher.Constraint("Equal", 39, 45))
sketch6.addConstraint(Sketcher.Constraint("Equal", 44, 46))
sketch6.addConstraint(Sketcher.Constraint("Perpendicular", 0, 12))
sketch6.addConstraint(Sketcher.Constraint("Perpendicular", 1, 13))
sketch6.addConstraint(Sketcher.Constraint("Perpendicular", 11, 23))
sketch6.addConstraint(Sketcher.Constraint("Perpendicular", 12, 24))
sketch6.addConstraint(Sketcher.Constraint("Perpendicular", 13, 25))
sketch6.addConstraint(Sketcher.Constraint("Perpendicular", 17, 29))
sketch6.addConstraint(Sketcher.Constraint("Perpendicular", 18, 30))
sketch6.addConstraint(Sketcher.Constraint("Perpendicular", 19, 31))
sketch6.addConstraint(Sketcher.Constraint("Perpendicular", 23, 35))
sketch6.addConstraint(Sketcher.Constraint("Perpendicular", 24, 36))
sketch6.addConstraint(Sketcher.Constraint("Perpendicular", 25, 37))
sketch6.addConstraint(Sketcher.Constraint("Perpendicular", 29, 41))
sketch6.addConstraint(Sketcher.Constraint("Perpendicular", 30, 42))
sketch6.addConstraint(Sketcher.Constraint("Perpendicular", 31, 43))
sketch6.addConstraint(Sketcher.Constraint("Perpendicular", 35, 47))
sketch6.addConstraint(Sketcher.Constraint("Equal", 1, 11))
sketch6.addConstraint(Sketcher.Constraint("Equal", 0, 12))
sketch6.addConstraint(Sketcher.Constraint("Equal", 11, 13))
sketch6.addConstraint(Sketcher.Constraint("Equal", 13, 17))
sketch6.addConstraint(Sketcher.Constraint("Equal", 12, 18))
sketch6.addConstraint(Sketcher.Constraint("Equal", 17, 19))
sketch6.addConstraint(Sketcher.Constraint("Equal", 19, 23))
sketch6.addConstraint(Sketcher.Constraint("Equal", 18, 24))
sketch6.addConstraint(Sketcher.Constraint("Equal", 23, 25))
sketch6.addConstraint(Sketcher.Constraint("Equal", 25, 29))
sketch6.addConstraint(Sketcher.Constraint("Equal", 24, 30))
sketch6.addConstraint(Sketcher.Constraint("Equal", 29, 31))
sketch6.addConstraint(Sketcher.Constraint("Equal", 31, 35))
sketch6.addConstraint(Sketcher.Constraint("Equal", 30, 36))
sketch6.addConstraint(Sketcher.Constraint("Equal", 35, 37))
sketch6.addConstraint(Sketcher.Constraint("Equal", 37, 41))
sketch6.addConstraint(Sketcher.Constraint("Equal", 36, 42))
sketch6.addConstraint(Sketcher.Constraint("Equal", 41, 43))
sketch6.addConstraint(Sketcher.Constraint("Equal", 43, 47))
sketch6.addConstraint(Sketcher.Constraint("Radius", 2, Q("0.72 mm")))
sketch6.addConstraint(Sketcher.Constraint("Radius", 3, Q("6.480001 mm")))
sketch6.addConstraint(Sketcher.Constraint("DistanceX", -1, 1, 3, 3, Q("20.000001 mm")))
sketch6.addConstraint(Sketcher.Constraint("DistanceY", 3, 3, -1, 1, Q("25.000001 mm")))
sketch6.addConstraint(Sketcher.Constraint("Radius", 4, Q("0.1351 mm")))
sketch6.addConstraint(Sketcher.Constraint("DistanceY", 17, 2, -1, 1, Q("33.64 mm")))
sketch6.addConstraint(Sketcher.Constraint("DistanceX", -1, 1, 17, 2, Q("19.136 mm")))
sketch6.addConstraint(Sketcher.Constraint("Radius", 6, Q("3.051668 mm")))
sketch6.addConstraint(Sketcher.Constraint("Distance", 7, Q("3.3225 mm")))
sketch6.addConstraint(Sketcher.Constraint("Distance", 1, Q("1.993929 mm")))
sketch6.addConstraint(Sketcher.Constraint("DistanceY", 2, 3, -1, 1, Q("21.69412 mm")))
sketch6.addConstraint(Sketcher.Constraint("DistanceX", -1, 1, 0, 2, Q("13.18814 mm")))
sketch6.addConstraint(Sketcher.Constraint("DistanceX", -1, 1, 8, 2, Q("14.127008 mm")))
sketch6.addConstraint(Sketcher.Constraint("DistanceY", 9, 2, -1, 1, Q("28.071679 mm")))
sketch6.addConstraint(Sketcher.Constraint("DistanceY", 18, 2, -1, 1, Q("33.624248 mm")))
sketch6.addConstraint(Sketcher.Constraint("DistanceX", -1, 1, 19, 2, Q("21.486071 mm")))
sketch6.addConstraint(Sketcher.Constraint("Distance", 5, Q("3.344253 mm")))
sketch6.addConstraint(Sketcher.Constraint("DistanceX", -1, 1, 4, 3, Q("14.204693 mm")))
sketch6.setExpression("Constraints[111]", "Params.sketch6_radius")
sketch6.setExpression("Constraints[112]", "Params.sketch6_radius2")
pocket4 = doc.addObject("PartDesign::Pocket", "Pocket003")
body.addObject(pocket4)
pocket4.Profile = sketch6
pocket4.Type = "ThroughAll"

doc.recompute()
